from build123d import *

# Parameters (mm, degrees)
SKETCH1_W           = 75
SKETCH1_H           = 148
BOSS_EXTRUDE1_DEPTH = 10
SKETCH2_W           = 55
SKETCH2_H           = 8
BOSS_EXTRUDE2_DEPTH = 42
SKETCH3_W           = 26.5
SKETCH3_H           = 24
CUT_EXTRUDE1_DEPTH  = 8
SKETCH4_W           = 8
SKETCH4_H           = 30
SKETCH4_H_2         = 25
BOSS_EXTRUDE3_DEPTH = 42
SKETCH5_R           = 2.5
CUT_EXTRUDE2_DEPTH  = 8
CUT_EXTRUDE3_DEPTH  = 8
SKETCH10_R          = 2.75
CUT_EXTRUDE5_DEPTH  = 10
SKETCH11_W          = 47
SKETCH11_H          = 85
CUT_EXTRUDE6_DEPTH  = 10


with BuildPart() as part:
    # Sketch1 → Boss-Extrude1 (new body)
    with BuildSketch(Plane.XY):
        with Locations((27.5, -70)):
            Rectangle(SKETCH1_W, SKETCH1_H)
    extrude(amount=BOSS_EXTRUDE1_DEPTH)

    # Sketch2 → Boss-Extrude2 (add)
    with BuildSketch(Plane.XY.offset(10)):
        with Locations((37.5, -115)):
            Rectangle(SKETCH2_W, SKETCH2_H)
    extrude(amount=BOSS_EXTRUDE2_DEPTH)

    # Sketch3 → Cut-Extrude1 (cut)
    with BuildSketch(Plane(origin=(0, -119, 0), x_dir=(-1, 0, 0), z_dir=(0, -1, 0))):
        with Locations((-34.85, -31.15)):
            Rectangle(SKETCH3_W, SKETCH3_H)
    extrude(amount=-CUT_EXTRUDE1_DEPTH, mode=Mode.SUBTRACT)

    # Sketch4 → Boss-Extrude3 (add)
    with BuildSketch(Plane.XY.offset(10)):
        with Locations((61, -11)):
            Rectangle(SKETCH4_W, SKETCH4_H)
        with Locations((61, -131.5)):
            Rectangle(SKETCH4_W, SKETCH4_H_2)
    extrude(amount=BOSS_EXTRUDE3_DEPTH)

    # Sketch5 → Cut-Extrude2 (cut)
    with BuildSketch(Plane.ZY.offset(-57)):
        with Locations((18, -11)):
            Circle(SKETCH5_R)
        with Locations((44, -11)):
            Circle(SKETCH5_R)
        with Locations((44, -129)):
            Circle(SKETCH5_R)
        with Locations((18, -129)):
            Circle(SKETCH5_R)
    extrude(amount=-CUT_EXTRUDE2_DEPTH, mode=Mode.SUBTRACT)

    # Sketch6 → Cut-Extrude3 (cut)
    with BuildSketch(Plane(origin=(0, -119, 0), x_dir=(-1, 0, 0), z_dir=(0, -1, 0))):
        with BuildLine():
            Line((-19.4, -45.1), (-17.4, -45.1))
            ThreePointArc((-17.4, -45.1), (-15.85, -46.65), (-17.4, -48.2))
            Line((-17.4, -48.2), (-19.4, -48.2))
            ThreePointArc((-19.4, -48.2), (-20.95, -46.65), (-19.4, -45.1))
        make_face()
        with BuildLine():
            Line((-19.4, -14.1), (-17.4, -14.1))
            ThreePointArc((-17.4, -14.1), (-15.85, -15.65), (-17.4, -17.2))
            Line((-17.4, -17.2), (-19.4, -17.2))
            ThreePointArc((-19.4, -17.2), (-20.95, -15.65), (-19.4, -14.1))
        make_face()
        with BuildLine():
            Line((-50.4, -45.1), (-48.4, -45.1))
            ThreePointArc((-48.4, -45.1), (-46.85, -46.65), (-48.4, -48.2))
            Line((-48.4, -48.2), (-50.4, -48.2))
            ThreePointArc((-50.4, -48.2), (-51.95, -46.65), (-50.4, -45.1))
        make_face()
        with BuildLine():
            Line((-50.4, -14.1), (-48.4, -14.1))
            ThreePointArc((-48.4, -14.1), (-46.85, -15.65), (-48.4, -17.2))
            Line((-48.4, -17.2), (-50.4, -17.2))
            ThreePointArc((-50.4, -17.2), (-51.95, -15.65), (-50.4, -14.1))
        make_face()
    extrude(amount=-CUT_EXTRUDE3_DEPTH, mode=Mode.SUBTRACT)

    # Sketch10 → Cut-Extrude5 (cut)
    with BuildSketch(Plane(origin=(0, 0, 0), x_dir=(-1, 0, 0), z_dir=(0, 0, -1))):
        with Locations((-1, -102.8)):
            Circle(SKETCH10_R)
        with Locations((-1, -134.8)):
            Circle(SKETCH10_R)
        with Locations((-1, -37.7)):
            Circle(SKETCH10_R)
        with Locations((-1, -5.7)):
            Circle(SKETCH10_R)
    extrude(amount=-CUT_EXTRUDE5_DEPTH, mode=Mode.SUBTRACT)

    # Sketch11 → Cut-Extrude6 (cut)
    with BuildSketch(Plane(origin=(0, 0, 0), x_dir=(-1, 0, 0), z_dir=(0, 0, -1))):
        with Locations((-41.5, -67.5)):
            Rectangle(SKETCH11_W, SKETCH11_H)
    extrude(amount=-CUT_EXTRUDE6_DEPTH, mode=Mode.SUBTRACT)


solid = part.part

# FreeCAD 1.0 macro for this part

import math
import FreeCAD as App
import Part
import Sketcher
from FreeCAD import Vector
Q = App.Units.Quantity

doc = App.newDocument("Part")
body = doc.addObject("PartDesign::Body", "Body")

sketch1 = body.newObject("Sketcher::SketchObject", "Sketch")
sketch1.AttachmentSupport = (doc.getObject("XY_Plane"), [""])
sketch1.MapMode = "FlatFace"
sketch1.addGeometry([
    Part.LineSegment(Vector(-10, 4, 0), Vector(-10, -144, 0)),
    Part.LineSegment(Vector(-10, -144, 0), Vector(65, -144, 0)),
    Part.LineSegment(Vector(65, -144, 0), Vector(65, 4, 0)),
    Part.LineSegment(Vector(65, 4, 0), Vector(-10, 4, 0)),
], False)
sketch1.addConstraint([
    Sketcher.Constraint("Coincident", 0, 2, 1, 1),
    Sketcher.Constraint("Coincident", 1, 2, 2, 1),
    Sketcher.Constraint("Coincident", 2, 2, 3, 1),
    Sketcher.Constraint("Coincident", 3, 2, 0, 1),
    Sketcher.Constraint("Vertical", 0),
    Sketcher.Constraint("Horizontal", 1),
    Sketcher.Constraint("Vertical", 2),
    Sketcher.Constraint("Horizontal", 3),
    Sketcher.Constraint("DistanceX", 1, 1, 1, 2, Q("75 mm")),
    Sketcher.Constraint("DistanceY", 0, 2, 0, 1, Q("148 mm")),
    Sketcher.Constraint("DistanceX", 0, 2, -1, 1, Q("10 mm")),
    Sketcher.Constraint("DistanceY", 0, 2, -1, 1, Q("144 mm")),
])
pad1 = body.newObject("PartDesign::Pad", "Pad")
pad1.Profile = sketch1
pad1.Length = 10

sketch2 = body.newObject("Sketcher::SketchObject", "Sketch001")
sketch2.AttachmentSupport = (doc.getObject("XY_Plane"), [""])
sketch2.MapMode = "FlatFace"
sketch2.AttachmentOffset = App.Placement(Vector(0, 0, 10), App.Rotation())
sketch2.addGeometry([
    Part.LineSegment(Vector(10, -111, 0), Vector(10, -119, 0)),
    Part.LineSegment(Vector(10, -119, 0), Vector(65, -119, 0)),
    Part.LineSegment(Vector(65, -119, 0), Vector(65, -111, 0)),
    Part.LineSegment(Vector(65, -111, 0), Vector(10, -111, 0)),
], False)
sketch2.addConstraint([
    Sketcher.Constraint("Coincident", 0, 2, 1, 1),
    Sketcher.Constraint("Coincident", 1, 2, 2, 1),
    Sketcher.Constraint("Coincident", 2, 2, 3, 1),
    Sketcher.Constraint("Coincident", 3, 2, 0, 1),
    Sketcher.Constraint("Vertical", 0),
    Sketcher.Constraint("Horizontal", 1),
    Sketcher.Constraint("Vertical", 2),
    Sketcher.Constraint("Horizontal", 3),
    Sketcher.Constraint("DistanceX", 1, 1, 1, 2, Q("55 mm")),
    Sketcher.Constraint("DistanceY", 0, 2, 0, 1, Q("8 mm")),
    Sketcher.Constraint("DistanceX", -1, 1, 0, 2, Q("10 mm")),
    Sketcher.Constraint("DistanceY", 0, 2, -1, 1, Q("119 mm")),
])
pad2 = body.newObject("PartDesign::Pad", "Pad001")
pad2.Profile = sketch2
pad2.Length = 42

sketch3 = body.newObject("Sketcher::SketchObject", "Sketch002")
sketch3.AttachmentSupport = (doc.getObject("XZ_Plane"), [""])
sketch3.MapMode = "FlatFace"
sketch3.AttachmentOffset = App.Placement(Vector(0, 0, 119), App.Rotation())
sketch3.addGeometry([
    Part.LineSegment(Vector(48, 19, 0), Vector(48, 43, 0)),
    Part.LineSegment(Vector(48, 43, 0), Vector(22, 43, 0)),
    Part.LineSegment(Vector(22, 43, 0), Vector(22, 19, 0)),
    Part.LineSegment(Vector(22, 19, 0), Vector(48, 19, 0)),
], False)
sketch3.addConstraint([
    Sketcher.Constraint("Coincident", 0, 2, 1, 1),
    Sketcher.Constraint("Coincident", 1, 2, 2, 1),
    Sketcher.Constraint("Coincident", 2, 2, 3, 1),
    Sketcher.Constraint("Coincident", 3, 2, 0, 1),
    Sketcher.Constraint("Vertical", 0),
    Sketcher.Constraint("Horizontal", 1),
    Sketcher.Constraint("Vertical", 2),
    Sketcher.Constraint("Horizontal", 3),
    Sketcher.Constraint("DistanceY", 0, 1, 0, 2, Q("24 mm")),
    Sketcher.Constraint("DistanceX", 1, 2, 1, 1, Q("26.5 mm")),
    Sketcher.Constraint("DistanceX", -1, 1, 0, 2, Q("48.1 mm")),
    Sketcher.Constraint("DistanceY", -1, 1, 0, 2, Q("43.15 mm")),
])
pocket1 = body.newObject("PartDesign::Pocket", "Pocket")
pocket1.Profile = sketch3
pocket1.Length = 8

sketch4 = body.newObject("Sketcher::SketchObject", "Sketch003")
sketch4.AttachmentSupport = (doc.getObject("XY_Plane"), [""])
sketch4.MapMode = "FlatFace"
sketch4.AttachmentOffset = App.Placement(Vector(0, 0, 10), App.Rotation())
sketch4.addGeometry([
    Part.LineSegment(Vector(57, 4, 0), Vector(57, -26, 0)),
    Part.LineSegment(Vector(57, -26, 0), Vector(65, -26, 0)),
    Part.LineSegment(Vector(65, -26, 0), Vector(65, 4, 0)),
    Part.LineSegment(Vector(65, 4, 0), Vector(57, 4, 0)),
    Part.LineSegment(Vector(57, -119, 0), Vector(57, -144, 0)),
    Part.LineSegment(Vector(57, -144, 0), Vector(65, -144, 0)),
    Part.LineSegment(Vector(65, -144, 0), Vector(65, -119, 0)),
    Part.LineSegment(Vector(65, -119, 0), Vector(57, -119, 0)),
], False)
sketch4.addConstraint([
    Sketcher.Constraint("Coincident", 0, 2, 1, 1),
    Sketcher.Constraint("Coincident", 1, 2, 2, 1),
    Sketcher.Constraint("Coincident", 2, 2, 3, 1),
    Sketcher.Constraint("Coincident", 3, 2, 0, 1),
    Sketcher.Constraint("Coincident", 4, 2, 5, 1),
    Sketcher.Constraint("Coincident", 5, 2, 6, 1),
    Sketcher.Constraint("Coincident", 6, 2, 7, 1),
    Sketcher.Constraint("Coincident", 7, 2, 4, 1),
    Sketcher.Constraint("Vertical", 0),
    Sketcher.Constraint("Horizontal", 1),
    Sketcher.Constraint("Vertical", 2),
    Sketcher.Constraint("Horizontal", 3),
    Sketcher.Constraint("Vertical", 4),
    Sketcher.Constraint("Horizontal", 5),
    Sketcher.Constraint("Vertical", 6),
    Sketcher.Constraint("Horizontal", 7),
    Sketcher.Constraint("Vertical", 3, 2, 4, 2),
    Sketcher.Constraint("Vertical", 2, 2, 5, 2),
    Sketcher.Constraint("DistanceX", 1, 1, 1, 2, Q("8 mm")),
    Sketcher.Constraint("DistanceY", 0, 2, 0, 1, Q("30 mm")),
    Sketcher.Constraint("DistanceY", 4, 2, 4, 1, Q("25 mm")),
    Sketcher.Constraint("DistanceX", -1, 1, 0, 2, Q("57 mm")),
    Sketcher.Constraint("DistanceY", 0, 2, -1, 1, Q("26 mm")),
    Sketcher.Constraint("DistanceY", 4, 2, -1, 1, Q("144 mm")),
])
pad3 = body.newObject("PartDesign::Pad", "Pad002")
pad3.Profile = sketch4
pad3.Length = 42

sketch5 = body.newObject("Sketcher::SketchObject", "Sketch004")
sketch5.AttachmentSupport = (doc.getObject("YZ_Plane"), [""])
sketch5.MapMode = "FlatFace"
sketch5.AttachmentOffset = App.Placement(Vector(0, 0, 57), App.Rotation())
sketch5.addGeometry([
    Part.Circle(Vector(-11, 18, 0), Vector(0, 0, 1), 2.5),
    Part.Circle(Vector(-11, 44, 0), Vector(0, 0, 1), 2.5),
    Part.Circle(Vector(-129, 44, 0), Vector(0, 0, 1), 2.5),
    Part.Circle(Vector(-129, 18, 0), Vector(0, 0, 1), 2.5),
], False)
sketch5.addConstraint([
    Sketcher.Constraint("Equal", 0, 1),
    Sketcher.Constraint("Equal", 1, 2),
    Sketcher.Constraint("Equal", 2, 3),
    Sketcher.Constraint("Horizontal", 1, 3, 2, 3),
    Sketcher.Constraint("Horizontal", 0, 3, 3, 3),
    Sketcher.Constraint("Vertical", 0, 3, 1, 3),
    Sketcher.Constraint("Vertical", 2, 3, 3, 3),
    Sketcher.Constraint("Diameter", 0, Q("5 mm")),
    Sketcher.Constraint("DistanceX", 0, 3, -1, 1, Q("11 mm")),
    Sketcher.Constraint("DistanceY", -1, 1, 0, 3, Q("18 mm")),
    Sketcher.Constraint("DistanceY", -1, 1, 1, 3, Q("44 mm")),
    Sketcher.Constraint("DistanceX", 2, 3, -1, 1, Q("129 mm")),
])
pocket2 = body.newObject("PartDesign::Pocket", "Pocket001")
pocket2.Profile = sketch5
pocket2.Length = 8
pocket2.Reversed = True

sketch6 = body.newObject("Sketcher::SketchObject", "Sketch005")
sketch6.AttachmentSupport = (doc.getObject("XZ_Plane"), [""])
sketch6.MapMode = "FlatFace"
sketch6.AttachmentOffset = App.Placement(Vector(0, 0, 119), App.Rotation())
sketch6.addGeometry([
    Part.LineSegment(Vector(17.4, 45.1, 0), Vector(19.4, 45.1, 0)),
    Part.ArcOfCircle(Part.Circle(Vector(19.4, 46.6, 0), Vector(0, 0, 1), 1.6), math.radians(-90), math.radians(90)),
    Part.LineSegment(Vector(19.4, 48.2, 0), Vector(17.4, 48.2, 0)),
    Part.ArcOfCircle(Part.Circle(Vector(17.4, 46.6, 0), Vector(0, 0, 1), 1.6), math.radians(90), math.radians(270)),
    Part.LineSegment(Vector(17.4, 14.1, 0), Vector(19.4, 14.1, 0)),
    Part.ArcOfCircle(Part.Circle(Vector(19.4, 15.7, 0), Vector(0, 0, 1), 1.6), math.radians(-90), math.radians(90)),
    Part.LineSegment(Vector(19.4, 17.2, 0), Vector(17.4, 17.2, 0)),
    Part.ArcOfCircle(Part.Circle(Vector(17.4, 15.7, 0), Vector(0, 0, 1), 1.6), math.radians(90), math.radians(270)),
    Part.LineSegment(Vector(48.4, 45.1, 0), Vector(50.4, 45.1, 0)),
    Part.ArcOfCircle(Part.Circle(Vector(50.4, 46.6, 0), Vector(0, 0, 1), 1.6), math.radians(-90), math.radians(90)),
    Part.LineSegment(Vector(50.4, 48.2, 0), Vector(48.4, 48.2, 0)),
    Part.ArcOfCircle(Part.Circle(Vector(48.4, 46.6, 0), Vector(0, 0, 1), 1.6), math.radians(90), math.radians(270)),
    Part.LineSegment(Vector(48.4, 14.1, 0), Vector(50.4, 14.1, 0)),
    Part.ArcOfCircle(Part.Circle(Vector(50.4, 15.7, 0), Vector(0, 0, 1), 1.6), math.radians(-90), math.radians(90)),
    Part.LineSegment(Vector(50.4, 17.2, 0), Vector(48.4, 17.2, 0)),
    Part.ArcOfCircle(Part.Circle(Vector(48.4, 15.7, 0), Vector(0, 0, 1), 1.6), math.radians(90), math.radians(270)),
], False)
sketch6.addConstraint([
    Sketcher.Constraint("Tangent", 0, 2, 1, 1),
    Sketcher.Constraint("Tangent", 1, 2, 2, 1),
    Sketcher.Constraint("Tangent", 2, 2, 3, 1),
    Sketcher.Constraint("Tangent", 3, 2, 0, 1),
    Sketcher.Constraint("Tangent", 4, 2, 5, 1),
    Sketcher.Constraint("Tangent", 5, 2, 6, 1),
    Sketcher.Constraint("Tangent", 6, 2, 7, 1),
    Sketcher.Constraint("Tangent", 7, 2, 4, 1),
    Sketcher.Constraint("Tangent", 8, 2, 9, 1),
    Sketcher.Constraint("Tangent", 9, 2, 10, 1),
    Sketcher.Constraint("Tangent", 10, 2, 11, 1),
    Sketcher.Constraint("Tangent", 11, 2, 8, 1),
    Sketcher.Constraint("Tangent", 12, 2, 13, 1),
    Sketcher.Constraint("Tangent", 13, 2, 14, 1),
    Sketcher.Constraint("Tangent", 14, 2, 15, 1),
    Sketcher.Constraint("Tangent", 15, 2, 12, 1),
    Sketcher.Constraint("Horizontal", 0),
    Sketcher.Constraint("Horizontal", 2),
    Sketcher.Constraint("Horizontal", 4),
    Sketcher.Constraint("Horizontal", 6),
    Sketcher.Constraint("Horizontal", 8),
    Sketcher.Constraint("Horizontal", 10),
    Sketcher.Constraint("Horizontal", 12),
    Sketcher.Constraint("Horizontal", 14),
    Sketcher.Constraint("Equal", 3, 5),
    Sketcher.Constraint("Equal", 7, 9),
    Sketcher.Constraint("Equal", 11, 13),
    Sketcher.Constraint("Horizontal", 3, 3, 9, 3),
    Sketcher.Constraint("Horizontal", 7, 3, 13, 3),
    Sketcher.Constraint("Vertical", 1, 3, 5, 3),
    Sketcher.Constraint("Vertical", 3, 3, 7, 3),
    Sketcher.Constraint("Vertical", 9, 3, 13, 3),
    Sketcher.Constraint("Vertical", 11, 3, 15, 3),
    Sketcher.Constraint("Equal", 6, 8),
    Sketcher.Constraint("DistanceX", 0, 1, 0, 2, Q("2 mm")),
    Sketcher.Constraint("Radius", 1, Q("1.55 mm")),
    Sketcher.Constraint("DistanceY", 5, 3, 1, 3, Q("31 mm")),
    Sketcher.Constraint("DistanceX", 1, 3, 9, 3, Q("31 mm")),
    Sketcher.Constraint("DistanceX", -1, 1, 1, 3, Q("19.4 mm")),
    Sketcher.Constraint("DistanceY", -1, 1, 0, 2, Q("45.1 mm")),
])
pocket3 = body.newObject("PartDesign::Pocket", "Pocket002")
pocket3.Profile = sketch6
pocket3.Length = 8

sketch7 = body.newObject("Sketcher::SketchObject", "Sketch006")
sketch7.AttachmentSupport = (doc.getObject("XY_Plane"), [""])
sketch7.MapMode = "FlatFace"
sketch7.addGeometry([
    Part.Circle(Vector(1, -102.8, 0), Vector(0, 0, 1), 2.8),
    Part.Circle(Vector(1, -134.8, 0), Vector(0, 0, 1), 2.8),
    Part.Circle(Vector(1, -37.7, 0), Vector(0, 0, 1), 2.8),
    Part.Circle(Vector(1, -5.7, 0), Vector(0, 0, 1), 2.8),
], False)
sketch7.addConstraint([
    Sketcher.Constraint("Equal", 0, 1),
    Sketcher.Constraint("Equal", 1, 2),
    Sketcher.Constraint("Equal", 2, 3),
    Sketcher.Constraint("Vertical", 0, 3, 1, 3),
    Sketcher.Constraint("Vertical", 1, 3, 2, 3),
    Sketcher.Constraint("Vertical", 2, 3, 3, 3),
    Sketcher.Constraint("Diameter", 0, Q("5.5 mm")),
    Sketcher.Constraint("DistanceX", -1, 1, 0, 3, Q("1 mm")),
    Sketcher.Constraint("DistanceY", 1, 3, 0, 3, Q("32 mm")),
    Sketcher.Constraint("DistanceY", 2, 3, 3, 3, Q("32 mm")),
    Sketcher.Constraint("DistanceY", 0, 3, -1, 1, Q("102.8 mm")),
    Sketcher.Constraint("DistanceY", 2, 3, -1, 1, Q("37.7 mm")),
])
pocket4 = body.newObject("PartDesign::Pocket", "Pocket003")
pocket4.Profile = sketch7
pocket4.Length = 10
pocket4.Reversed = True

sketch8 = body.newObject("Sketcher::SketchObject", "Sketch007")
sketch8.AttachmentSupport = (doc.getObject("XY_Plane"), [""])
sketch8.MapMode = "FlatFace"
sketch8.addGeometry([
    Part.LineSegment(Vector(65, -25, 0), Vector(65, -110, 0)),
    Part.LineSegment(Vector(65, -110, 0), Vector(18, -110, 0)),
    Part.LineSegment(Vector(18, -110, 0), Vector(18, -25, 0)),
    Part.LineSegment(Vector(18, -25, 0), Vector(65, -25, 0)),
], False)
sketch8.addConstraint([
    Sketcher.Constraint("Coincident", 0, 2, 1, 1),
    Sketcher.Constraint("Coincident", 1, 2, 2, 1),
    Sketcher.Constraint("Coincident", 2, 2, 3, 1),
    Sketcher.Constraint("Coincident", 3, 2, 0, 1),
    Sketcher.Constraint("Vertical", 0),
    Sketcher.Constraint("Horizontal", 1),
    Sketcher.Constraint("Vertical", 2),
    Sketcher.Constraint("Horizontal", 3),
    Sketcher.Constraint("DistanceX", 1, 2, 1, 1, Q("47 mm")),
    Sketcher.Constraint("DistanceY", 0, 2, 0, 1, Q("85 mm")),
    Sketcher.Constraint("DistanceX", -1, 1, 0, 2, Q("65 mm")),
    Sketcher.Constraint("DistanceY", 0, 2, -1, 1, Q("110 mm")),
])
pocket5 = body.newObject("PartDesign::Pocket", "Pocket004")
pocket5.Profile = sketch8
pocket5.Length = 10
pocket5.Reversed = True

doc.recompute()
